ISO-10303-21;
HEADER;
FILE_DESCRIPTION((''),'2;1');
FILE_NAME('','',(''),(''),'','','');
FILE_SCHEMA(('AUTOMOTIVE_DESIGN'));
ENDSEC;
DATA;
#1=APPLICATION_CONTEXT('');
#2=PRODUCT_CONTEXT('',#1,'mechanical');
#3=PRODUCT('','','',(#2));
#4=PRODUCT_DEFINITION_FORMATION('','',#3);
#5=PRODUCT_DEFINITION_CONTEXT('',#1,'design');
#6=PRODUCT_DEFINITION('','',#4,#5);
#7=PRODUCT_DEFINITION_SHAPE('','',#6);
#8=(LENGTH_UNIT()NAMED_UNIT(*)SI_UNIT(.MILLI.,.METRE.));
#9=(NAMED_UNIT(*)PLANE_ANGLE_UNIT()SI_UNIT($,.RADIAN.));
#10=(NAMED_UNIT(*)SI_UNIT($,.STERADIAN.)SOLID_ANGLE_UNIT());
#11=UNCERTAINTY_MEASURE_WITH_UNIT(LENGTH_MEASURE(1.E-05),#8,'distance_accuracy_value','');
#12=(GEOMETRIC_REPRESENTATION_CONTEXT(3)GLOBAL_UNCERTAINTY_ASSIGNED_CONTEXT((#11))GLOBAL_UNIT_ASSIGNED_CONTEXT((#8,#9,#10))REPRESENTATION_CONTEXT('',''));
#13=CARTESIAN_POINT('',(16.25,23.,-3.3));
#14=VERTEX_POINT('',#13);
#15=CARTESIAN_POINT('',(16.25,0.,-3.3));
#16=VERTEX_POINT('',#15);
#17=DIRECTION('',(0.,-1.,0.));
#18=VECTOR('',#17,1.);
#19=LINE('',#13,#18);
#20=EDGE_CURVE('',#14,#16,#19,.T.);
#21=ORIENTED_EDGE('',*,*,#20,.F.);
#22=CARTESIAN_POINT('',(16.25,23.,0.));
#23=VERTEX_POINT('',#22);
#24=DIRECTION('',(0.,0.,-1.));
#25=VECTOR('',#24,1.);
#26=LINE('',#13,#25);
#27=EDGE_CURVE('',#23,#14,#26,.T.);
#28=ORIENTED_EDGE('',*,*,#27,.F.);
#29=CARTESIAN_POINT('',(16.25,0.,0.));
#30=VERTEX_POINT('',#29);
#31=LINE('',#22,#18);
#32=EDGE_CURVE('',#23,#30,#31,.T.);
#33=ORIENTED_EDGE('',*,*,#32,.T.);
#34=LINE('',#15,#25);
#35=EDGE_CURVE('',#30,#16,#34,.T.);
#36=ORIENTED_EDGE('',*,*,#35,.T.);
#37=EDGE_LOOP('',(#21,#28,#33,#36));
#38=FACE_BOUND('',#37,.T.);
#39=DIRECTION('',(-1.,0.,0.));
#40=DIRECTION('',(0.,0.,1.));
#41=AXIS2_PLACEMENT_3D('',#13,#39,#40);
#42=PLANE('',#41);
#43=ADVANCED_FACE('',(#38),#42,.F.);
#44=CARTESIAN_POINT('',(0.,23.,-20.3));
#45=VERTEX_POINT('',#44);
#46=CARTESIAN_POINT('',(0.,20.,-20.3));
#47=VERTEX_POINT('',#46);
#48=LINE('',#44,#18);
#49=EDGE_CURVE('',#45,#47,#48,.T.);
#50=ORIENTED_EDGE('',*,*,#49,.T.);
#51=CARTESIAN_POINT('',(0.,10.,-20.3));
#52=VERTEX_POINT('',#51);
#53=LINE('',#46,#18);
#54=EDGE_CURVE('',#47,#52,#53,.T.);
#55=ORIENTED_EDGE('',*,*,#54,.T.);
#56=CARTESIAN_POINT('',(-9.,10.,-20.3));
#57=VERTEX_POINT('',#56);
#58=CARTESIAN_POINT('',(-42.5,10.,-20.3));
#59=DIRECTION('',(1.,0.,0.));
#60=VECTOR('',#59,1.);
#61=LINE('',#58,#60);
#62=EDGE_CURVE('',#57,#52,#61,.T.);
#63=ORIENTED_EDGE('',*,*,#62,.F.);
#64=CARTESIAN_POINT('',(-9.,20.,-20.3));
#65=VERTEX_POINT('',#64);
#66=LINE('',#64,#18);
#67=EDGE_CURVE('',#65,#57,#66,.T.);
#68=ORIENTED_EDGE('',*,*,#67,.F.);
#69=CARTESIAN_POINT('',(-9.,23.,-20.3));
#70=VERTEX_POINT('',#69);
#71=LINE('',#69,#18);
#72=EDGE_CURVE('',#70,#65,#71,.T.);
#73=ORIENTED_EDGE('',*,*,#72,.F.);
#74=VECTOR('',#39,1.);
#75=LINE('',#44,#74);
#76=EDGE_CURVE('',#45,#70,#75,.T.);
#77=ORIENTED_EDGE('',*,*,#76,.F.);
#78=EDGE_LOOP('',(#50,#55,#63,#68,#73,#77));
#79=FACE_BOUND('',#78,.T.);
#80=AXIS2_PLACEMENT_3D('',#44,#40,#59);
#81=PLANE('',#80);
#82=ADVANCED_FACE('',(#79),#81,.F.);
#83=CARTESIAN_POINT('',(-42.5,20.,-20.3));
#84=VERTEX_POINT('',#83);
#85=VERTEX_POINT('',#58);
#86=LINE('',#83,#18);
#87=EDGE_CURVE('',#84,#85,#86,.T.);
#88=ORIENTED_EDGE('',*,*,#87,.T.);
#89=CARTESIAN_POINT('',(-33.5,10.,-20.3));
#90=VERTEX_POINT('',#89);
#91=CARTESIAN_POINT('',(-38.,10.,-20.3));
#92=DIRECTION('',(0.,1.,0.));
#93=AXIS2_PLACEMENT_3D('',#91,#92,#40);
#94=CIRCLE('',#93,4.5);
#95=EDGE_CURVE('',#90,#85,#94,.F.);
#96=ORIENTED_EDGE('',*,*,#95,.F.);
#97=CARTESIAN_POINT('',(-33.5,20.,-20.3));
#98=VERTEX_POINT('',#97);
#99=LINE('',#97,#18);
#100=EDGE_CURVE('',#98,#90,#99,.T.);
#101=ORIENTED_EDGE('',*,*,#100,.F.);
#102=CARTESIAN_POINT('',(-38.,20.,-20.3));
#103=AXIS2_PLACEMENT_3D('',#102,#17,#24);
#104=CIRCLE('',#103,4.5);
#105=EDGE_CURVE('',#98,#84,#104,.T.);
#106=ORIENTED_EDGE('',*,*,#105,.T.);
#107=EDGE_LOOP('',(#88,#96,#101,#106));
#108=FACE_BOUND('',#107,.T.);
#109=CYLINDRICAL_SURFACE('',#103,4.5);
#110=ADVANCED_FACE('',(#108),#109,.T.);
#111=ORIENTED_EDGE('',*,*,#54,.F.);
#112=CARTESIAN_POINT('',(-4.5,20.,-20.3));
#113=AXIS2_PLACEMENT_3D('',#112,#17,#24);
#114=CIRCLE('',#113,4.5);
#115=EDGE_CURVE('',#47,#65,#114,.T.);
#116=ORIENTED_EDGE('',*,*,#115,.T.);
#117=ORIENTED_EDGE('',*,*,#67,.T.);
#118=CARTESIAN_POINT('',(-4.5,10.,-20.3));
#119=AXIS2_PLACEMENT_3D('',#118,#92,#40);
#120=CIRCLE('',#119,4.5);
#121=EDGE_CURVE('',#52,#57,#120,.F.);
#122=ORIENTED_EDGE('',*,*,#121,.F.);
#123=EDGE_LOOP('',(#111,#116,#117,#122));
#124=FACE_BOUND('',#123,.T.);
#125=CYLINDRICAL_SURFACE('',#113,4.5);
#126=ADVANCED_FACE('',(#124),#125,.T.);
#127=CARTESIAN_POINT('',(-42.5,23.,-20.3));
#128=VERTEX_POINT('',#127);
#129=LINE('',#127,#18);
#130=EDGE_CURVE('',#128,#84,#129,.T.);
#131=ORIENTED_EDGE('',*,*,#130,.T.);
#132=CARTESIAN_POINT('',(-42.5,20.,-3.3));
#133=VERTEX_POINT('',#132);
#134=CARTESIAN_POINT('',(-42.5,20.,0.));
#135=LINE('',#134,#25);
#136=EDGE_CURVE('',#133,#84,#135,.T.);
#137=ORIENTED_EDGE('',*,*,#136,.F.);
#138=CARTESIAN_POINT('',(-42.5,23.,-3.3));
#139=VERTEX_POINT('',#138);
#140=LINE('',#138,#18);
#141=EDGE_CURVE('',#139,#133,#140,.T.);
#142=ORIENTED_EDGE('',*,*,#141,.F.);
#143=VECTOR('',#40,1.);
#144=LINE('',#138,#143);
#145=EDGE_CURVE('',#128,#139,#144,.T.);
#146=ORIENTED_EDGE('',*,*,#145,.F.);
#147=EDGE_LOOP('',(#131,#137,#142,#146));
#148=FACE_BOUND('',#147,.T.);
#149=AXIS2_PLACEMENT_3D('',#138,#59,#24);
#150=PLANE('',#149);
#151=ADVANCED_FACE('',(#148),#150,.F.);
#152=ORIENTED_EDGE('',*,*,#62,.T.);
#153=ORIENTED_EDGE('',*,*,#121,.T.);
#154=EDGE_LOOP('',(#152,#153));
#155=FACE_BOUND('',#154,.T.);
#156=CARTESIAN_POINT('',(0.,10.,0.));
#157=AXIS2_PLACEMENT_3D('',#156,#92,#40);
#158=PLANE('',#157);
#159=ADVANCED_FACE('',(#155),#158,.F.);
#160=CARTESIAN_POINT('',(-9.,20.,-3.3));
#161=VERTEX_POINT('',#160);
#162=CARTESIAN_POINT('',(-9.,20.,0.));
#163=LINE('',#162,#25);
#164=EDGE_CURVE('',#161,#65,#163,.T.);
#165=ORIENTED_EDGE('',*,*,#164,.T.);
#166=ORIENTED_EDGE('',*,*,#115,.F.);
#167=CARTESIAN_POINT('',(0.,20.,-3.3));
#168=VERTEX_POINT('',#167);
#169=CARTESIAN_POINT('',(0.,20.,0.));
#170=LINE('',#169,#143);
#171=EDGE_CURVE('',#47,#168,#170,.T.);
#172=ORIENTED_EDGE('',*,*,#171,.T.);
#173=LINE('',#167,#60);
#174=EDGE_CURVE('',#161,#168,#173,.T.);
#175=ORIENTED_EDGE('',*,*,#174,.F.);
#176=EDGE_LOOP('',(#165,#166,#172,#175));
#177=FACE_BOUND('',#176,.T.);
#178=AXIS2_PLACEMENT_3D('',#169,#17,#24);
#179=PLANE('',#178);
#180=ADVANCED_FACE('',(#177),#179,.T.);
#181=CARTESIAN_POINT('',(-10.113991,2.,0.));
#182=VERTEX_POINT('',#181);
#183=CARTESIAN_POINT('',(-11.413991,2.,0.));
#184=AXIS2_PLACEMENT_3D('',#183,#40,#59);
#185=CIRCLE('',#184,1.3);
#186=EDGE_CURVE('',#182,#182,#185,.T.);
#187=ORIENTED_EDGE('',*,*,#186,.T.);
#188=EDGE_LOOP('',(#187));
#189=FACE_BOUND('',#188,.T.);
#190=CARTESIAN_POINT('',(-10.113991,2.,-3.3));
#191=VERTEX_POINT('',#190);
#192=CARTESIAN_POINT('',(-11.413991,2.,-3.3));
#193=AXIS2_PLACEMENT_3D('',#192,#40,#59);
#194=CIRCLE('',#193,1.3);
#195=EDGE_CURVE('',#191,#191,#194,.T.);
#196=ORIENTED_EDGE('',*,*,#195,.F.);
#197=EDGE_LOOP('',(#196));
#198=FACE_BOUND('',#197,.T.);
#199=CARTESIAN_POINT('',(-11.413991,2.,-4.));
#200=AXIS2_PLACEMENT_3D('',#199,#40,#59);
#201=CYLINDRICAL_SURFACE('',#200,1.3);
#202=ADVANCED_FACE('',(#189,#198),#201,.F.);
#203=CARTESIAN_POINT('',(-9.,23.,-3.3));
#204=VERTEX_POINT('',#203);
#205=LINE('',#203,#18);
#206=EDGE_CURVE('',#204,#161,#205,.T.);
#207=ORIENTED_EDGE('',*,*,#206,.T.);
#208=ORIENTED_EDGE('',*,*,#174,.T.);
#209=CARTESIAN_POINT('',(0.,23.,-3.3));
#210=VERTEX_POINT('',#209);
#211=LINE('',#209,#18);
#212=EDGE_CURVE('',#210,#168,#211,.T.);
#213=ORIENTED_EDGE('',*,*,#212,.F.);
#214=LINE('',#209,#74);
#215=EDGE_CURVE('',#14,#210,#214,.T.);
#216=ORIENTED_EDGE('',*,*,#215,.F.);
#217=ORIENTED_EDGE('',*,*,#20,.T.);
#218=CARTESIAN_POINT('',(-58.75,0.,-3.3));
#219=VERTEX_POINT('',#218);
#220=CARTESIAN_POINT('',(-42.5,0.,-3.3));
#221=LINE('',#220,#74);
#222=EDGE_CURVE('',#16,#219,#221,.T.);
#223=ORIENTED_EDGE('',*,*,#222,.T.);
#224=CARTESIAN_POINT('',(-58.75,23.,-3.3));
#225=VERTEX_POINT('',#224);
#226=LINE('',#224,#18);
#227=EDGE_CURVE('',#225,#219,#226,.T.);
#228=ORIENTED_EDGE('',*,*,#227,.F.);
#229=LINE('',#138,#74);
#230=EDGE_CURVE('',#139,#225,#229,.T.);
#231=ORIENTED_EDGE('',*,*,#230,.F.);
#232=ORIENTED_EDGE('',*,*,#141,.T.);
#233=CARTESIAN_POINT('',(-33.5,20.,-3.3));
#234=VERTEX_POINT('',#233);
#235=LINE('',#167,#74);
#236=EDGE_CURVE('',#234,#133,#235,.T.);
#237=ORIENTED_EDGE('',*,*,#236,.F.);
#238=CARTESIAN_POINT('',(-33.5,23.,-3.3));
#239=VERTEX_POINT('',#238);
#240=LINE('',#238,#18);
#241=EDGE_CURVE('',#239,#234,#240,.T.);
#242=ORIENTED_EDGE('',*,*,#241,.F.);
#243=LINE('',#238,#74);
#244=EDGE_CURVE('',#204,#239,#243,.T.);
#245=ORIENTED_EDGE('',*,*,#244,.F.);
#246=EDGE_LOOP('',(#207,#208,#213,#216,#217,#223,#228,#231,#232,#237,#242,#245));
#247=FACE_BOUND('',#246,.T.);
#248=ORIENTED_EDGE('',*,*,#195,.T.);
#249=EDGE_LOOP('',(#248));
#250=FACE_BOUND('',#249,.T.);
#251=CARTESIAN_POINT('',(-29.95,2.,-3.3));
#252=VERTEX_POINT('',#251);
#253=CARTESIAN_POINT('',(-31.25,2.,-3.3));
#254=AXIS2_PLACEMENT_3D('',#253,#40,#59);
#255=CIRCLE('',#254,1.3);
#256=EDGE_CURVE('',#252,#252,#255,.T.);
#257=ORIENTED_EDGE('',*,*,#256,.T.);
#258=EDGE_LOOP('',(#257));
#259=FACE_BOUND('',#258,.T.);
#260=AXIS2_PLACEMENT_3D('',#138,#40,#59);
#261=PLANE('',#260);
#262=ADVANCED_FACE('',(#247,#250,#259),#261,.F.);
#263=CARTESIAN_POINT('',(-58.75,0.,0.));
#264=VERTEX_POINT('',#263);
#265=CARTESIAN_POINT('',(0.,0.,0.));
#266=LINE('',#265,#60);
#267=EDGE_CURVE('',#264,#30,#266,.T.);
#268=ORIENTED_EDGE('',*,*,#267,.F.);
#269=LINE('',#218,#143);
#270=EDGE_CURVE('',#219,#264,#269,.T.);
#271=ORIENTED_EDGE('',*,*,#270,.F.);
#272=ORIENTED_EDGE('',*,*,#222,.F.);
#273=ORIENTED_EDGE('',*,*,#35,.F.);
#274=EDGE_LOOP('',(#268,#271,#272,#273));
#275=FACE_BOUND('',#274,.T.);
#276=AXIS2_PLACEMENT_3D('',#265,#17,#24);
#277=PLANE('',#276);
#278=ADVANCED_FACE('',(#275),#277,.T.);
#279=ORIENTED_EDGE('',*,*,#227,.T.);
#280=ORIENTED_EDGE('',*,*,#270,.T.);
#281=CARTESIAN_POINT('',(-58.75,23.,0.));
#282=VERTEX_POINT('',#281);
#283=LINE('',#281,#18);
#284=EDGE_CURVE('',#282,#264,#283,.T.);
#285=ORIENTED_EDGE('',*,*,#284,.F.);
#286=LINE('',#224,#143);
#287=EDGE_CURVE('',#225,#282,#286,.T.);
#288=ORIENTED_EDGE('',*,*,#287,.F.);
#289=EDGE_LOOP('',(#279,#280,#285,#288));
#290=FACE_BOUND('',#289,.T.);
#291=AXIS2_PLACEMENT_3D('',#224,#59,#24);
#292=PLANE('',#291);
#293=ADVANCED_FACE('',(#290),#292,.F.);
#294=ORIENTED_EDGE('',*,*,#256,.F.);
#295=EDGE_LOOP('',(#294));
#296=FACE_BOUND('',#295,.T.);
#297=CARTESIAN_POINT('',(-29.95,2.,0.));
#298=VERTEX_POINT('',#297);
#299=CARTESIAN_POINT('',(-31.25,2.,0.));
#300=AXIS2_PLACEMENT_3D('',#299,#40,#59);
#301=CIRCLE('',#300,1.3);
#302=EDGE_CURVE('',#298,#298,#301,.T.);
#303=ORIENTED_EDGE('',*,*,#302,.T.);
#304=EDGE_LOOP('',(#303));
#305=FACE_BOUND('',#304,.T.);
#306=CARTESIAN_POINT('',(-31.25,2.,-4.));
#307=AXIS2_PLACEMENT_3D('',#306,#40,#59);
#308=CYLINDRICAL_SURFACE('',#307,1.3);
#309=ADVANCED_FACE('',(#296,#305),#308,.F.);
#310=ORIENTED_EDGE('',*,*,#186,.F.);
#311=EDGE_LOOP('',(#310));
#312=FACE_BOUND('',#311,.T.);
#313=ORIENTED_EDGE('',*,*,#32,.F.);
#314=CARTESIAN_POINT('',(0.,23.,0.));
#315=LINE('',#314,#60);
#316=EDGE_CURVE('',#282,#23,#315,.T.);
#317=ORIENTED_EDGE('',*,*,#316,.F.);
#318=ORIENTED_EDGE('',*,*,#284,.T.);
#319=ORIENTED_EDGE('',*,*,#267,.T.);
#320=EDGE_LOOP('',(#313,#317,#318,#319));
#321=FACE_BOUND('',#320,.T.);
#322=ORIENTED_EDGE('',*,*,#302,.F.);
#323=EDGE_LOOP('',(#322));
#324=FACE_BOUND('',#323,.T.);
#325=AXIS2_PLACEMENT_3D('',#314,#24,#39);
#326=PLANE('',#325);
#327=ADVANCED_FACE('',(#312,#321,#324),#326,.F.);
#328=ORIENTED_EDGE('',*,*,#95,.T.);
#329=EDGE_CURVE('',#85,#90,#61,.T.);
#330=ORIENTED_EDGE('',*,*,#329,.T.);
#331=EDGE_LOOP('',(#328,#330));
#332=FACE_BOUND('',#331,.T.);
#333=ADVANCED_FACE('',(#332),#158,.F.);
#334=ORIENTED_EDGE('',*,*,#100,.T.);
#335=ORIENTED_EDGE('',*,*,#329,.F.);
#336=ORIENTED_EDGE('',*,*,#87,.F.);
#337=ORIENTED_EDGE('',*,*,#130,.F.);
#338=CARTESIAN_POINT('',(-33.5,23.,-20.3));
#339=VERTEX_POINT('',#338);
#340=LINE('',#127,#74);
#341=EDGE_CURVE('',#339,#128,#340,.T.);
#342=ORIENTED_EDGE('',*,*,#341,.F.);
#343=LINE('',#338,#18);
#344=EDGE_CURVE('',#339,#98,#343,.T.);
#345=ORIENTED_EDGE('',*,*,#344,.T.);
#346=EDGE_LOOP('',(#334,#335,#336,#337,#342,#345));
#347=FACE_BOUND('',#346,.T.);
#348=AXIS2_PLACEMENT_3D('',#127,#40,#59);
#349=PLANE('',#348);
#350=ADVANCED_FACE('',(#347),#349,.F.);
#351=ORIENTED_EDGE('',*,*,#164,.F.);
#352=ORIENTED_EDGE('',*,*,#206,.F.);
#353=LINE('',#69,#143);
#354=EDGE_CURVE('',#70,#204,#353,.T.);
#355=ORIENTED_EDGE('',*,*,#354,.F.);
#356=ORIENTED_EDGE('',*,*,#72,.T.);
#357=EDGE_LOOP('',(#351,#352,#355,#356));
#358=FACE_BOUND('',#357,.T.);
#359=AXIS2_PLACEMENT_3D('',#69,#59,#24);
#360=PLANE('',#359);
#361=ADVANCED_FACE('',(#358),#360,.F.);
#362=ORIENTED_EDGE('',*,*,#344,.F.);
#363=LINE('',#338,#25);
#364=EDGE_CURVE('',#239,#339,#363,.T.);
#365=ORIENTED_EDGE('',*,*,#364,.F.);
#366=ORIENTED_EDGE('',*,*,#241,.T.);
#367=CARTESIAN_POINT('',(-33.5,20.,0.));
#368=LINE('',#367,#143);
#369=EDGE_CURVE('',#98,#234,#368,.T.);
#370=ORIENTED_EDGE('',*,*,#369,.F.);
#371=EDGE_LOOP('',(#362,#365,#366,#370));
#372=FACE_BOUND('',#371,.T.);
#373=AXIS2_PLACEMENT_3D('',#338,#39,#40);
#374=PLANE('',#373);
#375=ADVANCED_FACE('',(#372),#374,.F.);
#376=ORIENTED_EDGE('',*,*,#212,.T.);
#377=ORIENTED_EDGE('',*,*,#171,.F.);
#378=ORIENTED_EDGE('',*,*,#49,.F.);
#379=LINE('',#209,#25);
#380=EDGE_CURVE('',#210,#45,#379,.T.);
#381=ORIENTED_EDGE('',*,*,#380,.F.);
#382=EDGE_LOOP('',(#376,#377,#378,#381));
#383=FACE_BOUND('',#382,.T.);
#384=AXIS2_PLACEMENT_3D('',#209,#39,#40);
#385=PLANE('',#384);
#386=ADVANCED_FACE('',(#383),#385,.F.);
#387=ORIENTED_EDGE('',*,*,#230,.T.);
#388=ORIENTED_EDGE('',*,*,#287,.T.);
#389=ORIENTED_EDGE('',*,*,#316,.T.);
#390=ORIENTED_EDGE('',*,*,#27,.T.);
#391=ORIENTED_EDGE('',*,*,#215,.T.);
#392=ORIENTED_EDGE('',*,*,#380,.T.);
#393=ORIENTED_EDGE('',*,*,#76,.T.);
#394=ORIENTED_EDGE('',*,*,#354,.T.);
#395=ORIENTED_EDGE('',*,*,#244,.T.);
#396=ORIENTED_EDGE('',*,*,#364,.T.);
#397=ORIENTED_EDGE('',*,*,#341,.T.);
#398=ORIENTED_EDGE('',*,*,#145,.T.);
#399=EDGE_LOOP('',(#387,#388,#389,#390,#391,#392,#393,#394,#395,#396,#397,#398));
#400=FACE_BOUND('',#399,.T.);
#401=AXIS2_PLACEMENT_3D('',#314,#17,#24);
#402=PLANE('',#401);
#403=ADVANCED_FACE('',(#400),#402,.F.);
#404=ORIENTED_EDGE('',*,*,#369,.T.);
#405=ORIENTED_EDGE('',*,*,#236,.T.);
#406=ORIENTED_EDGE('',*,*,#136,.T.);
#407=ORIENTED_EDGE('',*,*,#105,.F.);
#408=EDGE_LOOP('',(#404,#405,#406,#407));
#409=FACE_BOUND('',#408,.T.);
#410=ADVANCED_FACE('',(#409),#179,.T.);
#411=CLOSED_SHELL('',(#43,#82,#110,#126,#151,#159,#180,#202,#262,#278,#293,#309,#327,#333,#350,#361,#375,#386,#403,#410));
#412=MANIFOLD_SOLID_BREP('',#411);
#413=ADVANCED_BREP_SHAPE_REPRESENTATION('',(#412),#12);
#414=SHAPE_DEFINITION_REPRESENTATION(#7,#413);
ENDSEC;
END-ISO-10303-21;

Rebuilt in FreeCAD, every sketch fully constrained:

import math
import FreeCAD as App
import Part
import Sketcher

V = App.Vector
Q = App.Units.Quantity

doc = App.newDocument("Part")
body = doc.addObject("PartDesign::Body", "Body")

sketch1 = body.newObject("Sketcher::SketchObject", "Sketch")
sketch1.AttachmentSupport = (doc.getObject("XZ_Plane"), [""])
sketch1.MapMode = "FlatFace"
sketch1.addGeometry([
    Part.LineSegment(V(-58.8, 0, 0), V(16.2, 0, 0)),
    Part.LineSegment(V(16.2, 0, 0), V(16.2, -3.3, 0)),
    Part.LineSegment(V(16.2, -3.3, 0), V(0, -3.3, 0)),
    Part.LineSegment(V(0, -3.3, 0), V(0, -20.3, 0)),
    Part.LineSegment(V(0, -20.3, 0), V(-9, -20.3, 0)),
    Part.LineSegment(V(-9, -20.3, 0), V(-9, -3.3, 0)),
    Part.LineSegment(V(-9, -3.3, 0), V(-33.5, -3.3, 0)),
    Part.LineSegment(V(-33.5, -3.3, 0), V(-33.5, -20.3, 0)),
    Part.LineSegment(V(-33.5, -20.3, 0), V(-42.5, -20.3, 0)),
    Part.LineSegment(V(-42.5, -20.3, 0), V(-42.5, -3.3, 0)),
    Part.LineSegment(V(-42.5, -3.3, 0), V(-58.8, -3.3, 0)),
    Part.LineSegment(V(-58.8, -3.3, 0), V(-58.8, 0, 0)),
], False)
sketch1.addConstraint([
    Sketcher.Constraint("Coincident", 0, 2, 1, 1),
    Sketcher.Constraint("Coincident", 1, 2, 2, 1),
    Sketcher.Constraint("Coincident", 2, 2, 3, 1),
    Sketcher.Constraint("Coincident", 3, 2, 4, 1),
    Sketcher.Constraint("Coincident", 4, 2, 5, 1),
    Sketcher.Constraint("Coincident", 5, 2, 6, 1),
    Sketcher.Constraint("Coincident", 6, 2, 7, 1),
    Sketcher.Constraint("Coincident", 7, 2, 8, 1),
    Sketcher.Constraint("Coincident", 8, 2, 9, 1),
    Sketcher.Constraint("Coincident", 9, 2, 10, 1),
    Sketcher.Constraint("Coincident", 10, 2, 11, 1),
    Sketcher.Constraint("Coincident", 11, 2, 0, 1),
    Sketcher.Constraint("Horizontal", 0),
    Sketcher.Constraint("Vertical", 1),
    Sketcher.Constraint("Horizontal", 2),
    Sketcher.Constraint("Vertical", 3),
    Sketcher.Constraint("Horizontal", 4),
    Sketcher.Constraint("Vertical", 5),
    Sketcher.Constraint("Horizontal", 6),
    Sketcher.Constraint("Vertical", 7),
    Sketcher.Constraint("Horizontal", 8),
    Sketcher.Constraint("Vertical", 9),
    Sketcher.Constraint("Horizontal", 10),
    Sketcher.Constraint("Vertical", 11),
    Sketcher.Constraint("PointOnObject", 0, 2, -1),
    Sketcher.Constraint("PointOnObject", 2, 2, -2),
    Sketcher.Constraint("Horizontal", 2, 2, 5, 2),
    Sketcher.Constraint("Horizontal", 4, 2, 7, 2),
    Sketcher.Constraint("Horizontal", 6, 2, 9, 2),
    Sketcher.Constraint("Equal", 4, 8),
    Sketcher.Constraint("Equal", 2, 10),
    Sketcher.Constraint("DistanceX", 0, 1, 0, 2, Q("75 mm")),
    Sketcher.Constraint("DistanceX", 4, 2, 4, 1, Q("9 mm")),
    Sketcher.Constraint("DistanceY", 3, 2, 3, 1, Q("17 mm")),
    Sketcher.Constraint("DistanceX", 6, 2, 6, 1, Q("24.5 mm")),
    Sketcher.Constraint("DistanceY", 1, 2, 1, 1, Q("3.3 mm")),
])
pad1 = body.newObject("PartDesign::Pad", "Pad")
pad1.Profile = sketch1
pad1.Length = 23
pad1.Reversed = True

sketch2 = body.newObject("Sketcher::SketchObject", "Sketch001")
sketch2.AttachmentSupport = (doc.getObject("XZ_Plane"), [""])
sketch2.MapMode = "FlatFace"
sketch2.addGeometry([
    Part.LineSegment(V(-9, -3.3, 0), V(-9, -20.3, 0)),
    Part.ArcOfCircle(Part.Circle(V(-4.5, -20.3, 0), V(0, 0, 1), 4.5), math.radians(0), math.radians(180)),
    Part.LineSegment(V(0, -20.3, 0), V(0, -3.3, 0)),
    Part.LineSegment(V(0, -3.3, 0), V(-9, -3.3, 0)),
    Part.LineSegment(V(-33.5, -3.3, 0), V(-42.5, -3.3, 0)),
    Part.LineSegment(V(-42.5, -3.3, 0), V(-42.5, -20.3, 0)),
    Part.ArcOfCircle(Part.Circle(V(-38, -20.3, 0), V(0, 0, 1), 4.5), math.radians(0), math.radians(180)),
    Part.LineSegment(V(-33.5, -20.3, 0), V(-33.5, -3.3, 0)),
], False)
sketch2.addConstraint([
    Sketcher.Constraint("Tangent", 0, 2, 1, 2),
    Sketcher.Constraint("Tangent", 1, 1, 2, 1),
    Sketcher.Constraint("Coincident", 2, 2, 3, 1),
    Sketcher.Constraint("Coincident", 3, 2, 0, 1),
    Sketcher.Constraint("Coincident", 4, 2, 5, 1),
    Sketcher.Constraint("Tangent", 5, 2, 6, 2),
    Sketcher.Constraint("Tangent", 6, 1, 7, 1),
    Sketcher.Constraint("Coincident", 7, 2, 4, 1),
    Sketcher.Constraint("Vertical", 0),
    Sketcher.Constraint("Vertical", 2),
    Sketcher.Constraint("Horizontal", 3),
    Sketcher.Constraint("Horizontal", 4),
    Sketcher.Constraint("Vertical", 5),
    Sketcher.Constraint("Vertical", 7),
    Sketcher.Constraint("Equal", 1, 6),
    Sketcher.Constraint("PointOnObject", 1, 1, -2),
    Sketcher.Constraint("Horizontal", 1, 3, 6, 3),
    Sketcher.Constraint("Horizontal", 3, 2, 4, 2),
    Sketcher.Constraint("Radius", 1, Q("4.5 mm")),
    Sketcher.Constraint("DistanceY", 0, 2, 0, 1, Q("17 mm")),
    Sketcher.Constraint("DistanceX", 6, 3, -1, 1, Q("38 mm")),
    Sketcher.Constraint("DistanceY", 1, 3, -1, 1, Q("20.3 mm")),
])
pocket1 = body.newObject("PartDesign::Pocket", "Pocket")
pocket1.Profile = sketch2
pocket1.Length = 20

sketch3 = body.newObject("Sketcher::SketchObject", "Sketch002")
sketch3.AttachmentSupport = (doc.getObject("XY_Plane"), [""])
sketch3.MapMode = "FlatFace"
sketch3.addGeometry([
    Part.Circle(V(-31.2, 2, 0), V(0, 0, 1), 1.3),
    Part.Circle(V(-11.4, 2, 0), V(0, 0, 1), 1.3),
], False)
sketch3.addConstraint([
    Sketcher.Constraint("Equal", 0, 1),
    Sketcher.Constraint("Horizontal", 0, 3, 1, 3),
    Sketcher.Constraint("Diameter", 0, Q("2.6 mm")),
    Sketcher.Constraint("DistanceY", -1, 1, 0, 3, Q("2 mm")),
    Sketcher.Constraint("DistanceX", 0, 3, -1, 1, Q("31.25 mm")),
    Sketcher.Constraint("DistanceX", 1, 3, -1, 1, Q("11.413991 mm")),
])
pocket2 = body.newObject("PartDesign::Pocket", "Pocket001")
pocket2.Profile = sketch3
pocket2.Length = 4

sketch4 = body.newObject("Sketcher::SketchObject", "Sketch003")
sketch4.AttachmentSupport = (doc.getObject("XZ_Plane"), [""])
sketch4.MapMode = "FlatFace"
sketch4.addGeometry([
    Part.LineSegment(V(-42, -14, 0), V(-42, -20, 0)),
    Part.LineSegment(V(-42, -20, 0), V(0, -20, 0)),
    Part.LineSegment(V(0, -20, 0), V(0, -14, 0)),
    Part.LineSegment(V(0, -14, 0), V(-42, -14, 0)),
], False)
sketch4.addConstraint([
    Sketcher.Constraint("Coincident", 0, 2, 1, 1),
    Sketcher.Constraint("Coincident", 1, 2, 2, 1),
    Sketcher.Constraint("Coincident", 2, 2, 3, 1),
    Sketcher.Constraint("Coincident", 3, 2, 0, 1),
    Sketcher.Constraint("Vertical", 0),
    Sketcher.Constraint("Horizontal", 1),
    Sketcher.Constraint("Vertical", 2),
    Sketcher.Constraint("Horizontal", 3),
    Sketcher.Constraint("PointOnObject", 1, 2, -2),
    Sketcher.Constraint("DistanceX", 1, 1, 1, 2, Q("42.5 mm")),
    Sketcher.Constraint("DistanceY", 0, 2, -1, 1, Q("20.3 mm")),
    Sketcher.Constraint("DistanceY", 0, 2, 0, 1, Q("6.002605 mm")),
])
pocket3 = body.newObject("PartDesign::Pocket", "Pocket002")
pocket3.Profile = sketch4
pocket3.Length = 10

doc.recompute()
